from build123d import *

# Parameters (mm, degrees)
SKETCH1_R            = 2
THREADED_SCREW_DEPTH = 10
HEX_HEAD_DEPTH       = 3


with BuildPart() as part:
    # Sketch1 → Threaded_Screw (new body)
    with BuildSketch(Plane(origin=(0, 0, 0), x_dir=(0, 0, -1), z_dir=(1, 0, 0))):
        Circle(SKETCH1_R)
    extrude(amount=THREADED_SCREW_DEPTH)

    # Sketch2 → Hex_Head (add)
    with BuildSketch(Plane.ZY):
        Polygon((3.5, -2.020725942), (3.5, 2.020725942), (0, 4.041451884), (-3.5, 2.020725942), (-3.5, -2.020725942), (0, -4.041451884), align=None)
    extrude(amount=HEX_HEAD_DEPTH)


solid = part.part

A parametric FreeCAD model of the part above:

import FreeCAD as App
import Part
import Sketcher

V = App.Vector
Q = App.Units.Quantity

doc = App.newDocument("Part")
body = doc.addObject("PartDesign::Body", "Body")

sketch1 = body.newObject("Sketcher::SketchObject", "Sketch")
sketch1.AttachmentSupport = (doc.getObject("YZ_Plane"), [""])
sketch1.MapMode = "FlatFace"
sketch1.addGeometry(Part.Circle(V(0, 0, 0), V(0, 0, 1), 2), False)
sketch1.addConstraint(Sketcher.Constraint("Coincident", 0, 3, -1, 1))
sketch1.addConstraint(Sketcher.Constraint("Diameter", 0, 4.0))
pad1 = body.newObject("PartDesign::Pad", "Pad")
pad1.Profile = sketch1
pad1.Length = 10

sketch2 = body.newObject("Sketcher::SketchObject", "Sketch001")
sketch2.AttachmentSupport = (doc.getObject("YZ_Plane"), [""])
sketch2.MapMode = "FlatFace"
sketch2.addGeometry(Part.LineSegment(V(-2.020726, 3.5, 0), V(2.020726, 3.5, 0)), False)
sketch2.addGeometry(Part.LineSegment(V(2.020726, 3.5, 0), V(4.041452, 0, 0)), False)
sketch2.addGeometry(Part.LineSegment(V(4.041452, 0, 0), V(2.020726, -3.5, 0)), False)
sketch2.addGeometry(Part.LineSegment(V(2.020726, -3.5, 0), V(-2.020726, -3.5, 0)), False)
sketch2.addGeometry(Part.LineSegment(V(-2.020726, -3.5, 0), V(-4.041452, 0, 0)), False)
sketch2.addGeometry(Part.LineSegment(V(-4.041452, 0, 0), V(-2.020726, 3.5, 0)), False)
sketch2.addConstraint(Sketcher.Constraint("Coincident", 0, 2, 1, 1))
sketch2.addConstraint(Sketcher.Constraint("Coincident", 1, 2, 2, 1))
sketch2.addConstraint(Sketcher.Constraint("Coincident", 2, 2, 3, 1))
sketch2.addConstraint(Sketcher.Constraint("Coincident", 3, 2, 4, 1))
sketch2.addConstraint(Sketcher.Constraint("Coincident", 4, 2, 5, 1))
sketch2.addConstraint(Sketcher.Constraint("Coincident", 5, 2, 0, 1))
sketch2.addConstraint(Sketcher.Constraint("Horizontal", 0))
sketch2.addConstraint(Sketcher.Constraint("Horizontal", 3))
sketch2.addConstraint(Sketcher.Constraint("Symmetric", 0, 2, 3, 2, -1, 1))
sketch2.addConstraint(Sketcher.Constraint("Symmetric", 1, 2, 4, 2, -1, 1))
sketch2.addConstraint(Sketcher.Constraint("PointOnObject", 1, 2, -1))
sketch2.addConstraint(Sketcher.Constraint("Parallel", 2, 5))
sketch2.addConstraint(Sketcher.Constraint("Vertical", 0, 2, 2, 2))
sketch2.addConstraint(Sketcher.Constraint("Angle", 1, Q("-60 deg")))
sketch2.addConstraint(Sketcher.Constraint("DistanceY", 2, 2, 0, 2, 7.0))
sketch2.addConstraint(Sketcher.Constraint("DistanceX", 0, 1, 0, 2, 4.041452))
pad2 = body.newObject("PartDesign::Pad", "Pad001")
pad2.Profile = sketch2
pad2.Length = 3
pad2.Reversed = True

doc.recompute()
